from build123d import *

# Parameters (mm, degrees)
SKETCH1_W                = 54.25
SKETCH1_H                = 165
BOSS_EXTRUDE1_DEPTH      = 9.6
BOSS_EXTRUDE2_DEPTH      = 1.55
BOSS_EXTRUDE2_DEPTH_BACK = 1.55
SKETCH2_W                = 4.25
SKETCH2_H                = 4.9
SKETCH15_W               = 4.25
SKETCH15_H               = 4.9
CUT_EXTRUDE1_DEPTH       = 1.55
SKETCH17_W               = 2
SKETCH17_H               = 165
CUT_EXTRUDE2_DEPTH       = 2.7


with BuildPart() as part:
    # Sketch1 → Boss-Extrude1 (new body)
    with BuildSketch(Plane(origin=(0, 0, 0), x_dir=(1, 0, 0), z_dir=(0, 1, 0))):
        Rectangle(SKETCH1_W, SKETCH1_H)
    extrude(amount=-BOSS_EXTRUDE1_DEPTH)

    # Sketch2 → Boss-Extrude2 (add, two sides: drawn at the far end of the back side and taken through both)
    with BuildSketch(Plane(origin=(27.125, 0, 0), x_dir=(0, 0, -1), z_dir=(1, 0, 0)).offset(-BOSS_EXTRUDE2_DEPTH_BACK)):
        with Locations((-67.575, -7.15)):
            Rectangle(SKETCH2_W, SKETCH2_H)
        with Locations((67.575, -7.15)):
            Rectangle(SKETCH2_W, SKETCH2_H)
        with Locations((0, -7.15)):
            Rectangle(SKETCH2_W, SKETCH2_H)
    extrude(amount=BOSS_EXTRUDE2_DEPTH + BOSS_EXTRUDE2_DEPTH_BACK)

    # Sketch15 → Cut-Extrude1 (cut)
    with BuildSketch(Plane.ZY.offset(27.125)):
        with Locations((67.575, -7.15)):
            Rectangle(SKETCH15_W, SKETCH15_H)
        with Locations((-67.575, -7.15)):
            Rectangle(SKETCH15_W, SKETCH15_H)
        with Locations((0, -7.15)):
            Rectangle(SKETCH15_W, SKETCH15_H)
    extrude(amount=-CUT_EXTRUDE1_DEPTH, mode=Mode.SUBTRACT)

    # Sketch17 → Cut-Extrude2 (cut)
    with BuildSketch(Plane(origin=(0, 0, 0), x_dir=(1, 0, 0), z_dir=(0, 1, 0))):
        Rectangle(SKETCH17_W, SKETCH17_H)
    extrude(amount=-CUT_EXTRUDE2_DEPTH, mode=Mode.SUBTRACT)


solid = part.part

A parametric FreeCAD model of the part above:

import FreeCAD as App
import Part
import Sketcher
from FreeCAD import Vector
Q = App.Units.Quantity


def add_polygon(sketch, points):
    """Adds a closed chain of lines whose ends are joined by coincident constraints."""
    first, n = sketch.GeometryCount, len(points)
    for a, b in zip(points, points[1:] + points[:1]):
        sketch.addGeometry(Part.LineSegment(App.Vector(*a, 0), App.Vector(*b, 0)), False)
    for i in range(n):
        sketch.addConstraint(Sketcher.Constraint("Coincident", first + i, 2, first + (i + 1) % n, 1))

doc = App.newDocument("Part")
body = doc.addObject("PartDesign::Body", "Body")

sketch1 = body.newObject("Sketcher::SketchObject", "Sketch")
sketch1.AttachmentSupport = (doc.getObject("XZ_Plane"), [""])
sketch1.MapMode = "FlatFace"
add_polygon(sketch1, [(-27, -82), (-27, 82), (27, 82), (27, -82)])
sketch1.addConstraint([
    Sketcher.Constraint("Vertical", 0),
    Sketcher.Constraint("Horizontal", 1),
    Sketcher.Constraint("Vertical", 2),
    Sketcher.Constraint("Horizontal", 3),
    Sketcher.Constraint("Symmetric", 0, 2, 2, 2, -1, 1),
    Sketcher.Constraint("DistanceY", 0, 1, 0, 2, Q("165 mm")),
    Sketcher.Constraint("DistanceX", 1, 1, 1, 2, Q("54.25 mm")),
])
pad1 = body.newObject("PartDesign::Pad", "Pad")
pad1.Profile = sketch1
pad1.Length = 9.6

sketch2 = body.newObject("Sketcher::SketchObject", "Sketch001")
sketch2.AttachmentSupport = (doc.getObject("YZ_Plane"), [""])
sketch2.MapMode = "FlatFace"
sketch2.AttachmentOffset = App.Placement(Vector(0, 0, 27.125), App.Rotation())
add_polygon(sketch2, [(-4.7, 69.7), (-9.6, 69.7), (-9.6, 65.5), (-4.7, 65.5)])
add_polygon(sketch2, [(-4.7, -65.5), (-9.6, -65.5), (-9.6, -69.7), (-4.7, -69.7)])
add_polygon(sketch2, [(-4.7, 2.1), (-9.6, 2.1), (-9.6, -2.1), (-4.7, -2.1)])
sketch2.addConstraint([
    Sketcher.Constraint("Horizontal", 0),
    Sketcher.Constraint("Vertical", 1),
    Sketcher.Constraint("Horizontal", 2),
    Sketcher.Constraint("Vertical", 3),
    Sketcher.Constraint("Horizontal", 4),
    Sketcher.Constraint("Vertical", 5),
    Sketcher.Constraint("Horizontal", 6),
    Sketcher.Constraint("Vertical", 7),
    Sketcher.Constraint("Horizontal", 8),
    Sketcher.Constraint("Vertical", 9),
    Sketcher.Constraint("Horizontal", 10),
    Sketcher.Constraint("Vertical", 11),
    Sketcher.Constraint("Symmetric", 1, 2, 4, 2, -1),
    Sketcher.Constraint("Symmetric", 3, 2, 6, 2, -1),
    Sketcher.Constraint("Vertical", 5, 2, 8, 2),
    Sketcher.Constraint("Vertical", 7, 2, 10, 2),
    Sketcher.Constraint("Equal", 7, 9),
    Sketcher.Constraint("DistanceX", 0, 2, 0, 1, Q("4.9 mm")),
    Sketcher.Constraint("DistanceY", 1, 2, 1, 1, Q("4.25 mm")),
    Sketcher.Constraint("DistanceX", 0, 2, -1, 1, Q("9.6 mm")),
    Sketcher.Constraint("DistanceY", -1, 1, 0, 2, Q("69.7 mm")),
    Sketcher.Constraint("DistanceY", -1, 1, 8, 2, Q("2.125 mm")),
])
pad2 = body.newObject("PartDesign::Pad", "Pad001")
pad2.Profile = sketch2
pad2.Type = "TwoLengths"
pad2.Length = 1.55
pad2.Length2 = 1.55

sketch3 = body.newObject("Sketcher::SketchObject", "Sketch002")
sketch3.AttachmentSupport = (doc.getObject("YZ_Plane"), [""])
sketch3.MapMode = "FlatFace"
sketch3.AttachmentOffset = App.Placement(Vector(0, 0, -27.125), App.Rotation())
add_polygon(sketch3, [(-4.7, 65.5), (-9.6, 65.5), (-9.6, 69.7), (-4.7, 69.7)])
add_polygon(sketch3, [(-4.7, -69.7), (-9.6, -69.7), (-9.6, -65.5), (-4.7, -65.5)])
add_polygon(sketch3, [(-4.7, -2.1), (-9.6, -2.1), (-9.6, 2.1), (-4.7, 2.1)])
sketch3.addConstraint([
    Sketcher.Constraint("Horizontal", 0),
    Sketcher.Constraint("Vertical", 1),
    Sketcher.Constraint("Horizontal", 2),
    Sketcher.Constraint("Vertical", 3),
    Sketcher.Constraint("Horizontal", 4),
    Sketcher.Constraint("Vertical", 5),
    Sketcher.Constraint("Horizontal", 6),
    Sketcher.Constraint("Vertical", 7),
    Sketcher.Constraint("Horizontal", 8),
    Sketcher.Constraint("Vertical", 9),
    Sketcher.Constraint("Horizontal", 10),
    Sketcher.Constraint("Vertical", 11),
    Sketcher.Constraint("Symmetric", 1, 2, 4, 2, -1),
    Sketcher.Constraint("Symmetric", 3, 2, 6, 2, -1),
    Sketcher.Constraint("Vertical", 5, 2, 8, 2),
    Sketcher.Constraint("Vertical", 7, 2, 10, 2),
    Sketcher.Constraint("Equal", 7, 9),
    Sketcher.Constraint("DistanceX", 0, 2, 0, 1, Q("4.9 mm")),
    Sketcher.Constraint("DistanceY", 1, 1, 1, 2, Q("4.25 mm")),
    Sketcher.Constraint("DistanceX", 0, 2, -1, 1, Q("9.6 mm")),
    Sketcher.Constraint("DistanceY", -1, 1, 1, 2, Q("69.7 mm")),
    Sketcher.Constraint("DistanceY", 8, 2, -1, 1, Q("2.125 mm")),
])
pocket1 = body.newObject("PartDesign::Pocket", "Pocket")
pocket1.Profile = sketch3
pocket1.Length = 1.55
pocket1.Reversed = True

sketch4 = body.newObject("Sketcher::SketchObject", "Sketch003")
sketch4.AttachmentSupport = (doc.getObject("XZ_Plane"), [""])
sketch4.MapMode = "FlatFace"
add_polygon(sketch4, [(-1, -82.5), (-1, 82.5), (1, 82.5), (1, -82.5)])
sketch4.addConstraint([
    Sketcher.Constraint("Vertical", 0),
    Sketcher.Constraint("Horizontal", 1),
    Sketcher.Constraint("Vertical", 2),
    Sketcher.Constraint("Horizontal", 3),
    Sketcher.Constraint("Symmetric", 0, 2, 2, 2, -1, 1),
    Sketcher.Constraint("DistanceX", 1, 1, 1, 2, Q("2 mm")),
    Sketcher.Constraint("DistanceY", 0, 1, 0, 2, Q("165 mm")),
])
pocket2 = body.newObject("PartDesign::Pocket", "Pocket001")
pocket2.Profile = sketch4
pocket2.Length = 2.7
pocket2.Reversed = True

doc.recompute()
